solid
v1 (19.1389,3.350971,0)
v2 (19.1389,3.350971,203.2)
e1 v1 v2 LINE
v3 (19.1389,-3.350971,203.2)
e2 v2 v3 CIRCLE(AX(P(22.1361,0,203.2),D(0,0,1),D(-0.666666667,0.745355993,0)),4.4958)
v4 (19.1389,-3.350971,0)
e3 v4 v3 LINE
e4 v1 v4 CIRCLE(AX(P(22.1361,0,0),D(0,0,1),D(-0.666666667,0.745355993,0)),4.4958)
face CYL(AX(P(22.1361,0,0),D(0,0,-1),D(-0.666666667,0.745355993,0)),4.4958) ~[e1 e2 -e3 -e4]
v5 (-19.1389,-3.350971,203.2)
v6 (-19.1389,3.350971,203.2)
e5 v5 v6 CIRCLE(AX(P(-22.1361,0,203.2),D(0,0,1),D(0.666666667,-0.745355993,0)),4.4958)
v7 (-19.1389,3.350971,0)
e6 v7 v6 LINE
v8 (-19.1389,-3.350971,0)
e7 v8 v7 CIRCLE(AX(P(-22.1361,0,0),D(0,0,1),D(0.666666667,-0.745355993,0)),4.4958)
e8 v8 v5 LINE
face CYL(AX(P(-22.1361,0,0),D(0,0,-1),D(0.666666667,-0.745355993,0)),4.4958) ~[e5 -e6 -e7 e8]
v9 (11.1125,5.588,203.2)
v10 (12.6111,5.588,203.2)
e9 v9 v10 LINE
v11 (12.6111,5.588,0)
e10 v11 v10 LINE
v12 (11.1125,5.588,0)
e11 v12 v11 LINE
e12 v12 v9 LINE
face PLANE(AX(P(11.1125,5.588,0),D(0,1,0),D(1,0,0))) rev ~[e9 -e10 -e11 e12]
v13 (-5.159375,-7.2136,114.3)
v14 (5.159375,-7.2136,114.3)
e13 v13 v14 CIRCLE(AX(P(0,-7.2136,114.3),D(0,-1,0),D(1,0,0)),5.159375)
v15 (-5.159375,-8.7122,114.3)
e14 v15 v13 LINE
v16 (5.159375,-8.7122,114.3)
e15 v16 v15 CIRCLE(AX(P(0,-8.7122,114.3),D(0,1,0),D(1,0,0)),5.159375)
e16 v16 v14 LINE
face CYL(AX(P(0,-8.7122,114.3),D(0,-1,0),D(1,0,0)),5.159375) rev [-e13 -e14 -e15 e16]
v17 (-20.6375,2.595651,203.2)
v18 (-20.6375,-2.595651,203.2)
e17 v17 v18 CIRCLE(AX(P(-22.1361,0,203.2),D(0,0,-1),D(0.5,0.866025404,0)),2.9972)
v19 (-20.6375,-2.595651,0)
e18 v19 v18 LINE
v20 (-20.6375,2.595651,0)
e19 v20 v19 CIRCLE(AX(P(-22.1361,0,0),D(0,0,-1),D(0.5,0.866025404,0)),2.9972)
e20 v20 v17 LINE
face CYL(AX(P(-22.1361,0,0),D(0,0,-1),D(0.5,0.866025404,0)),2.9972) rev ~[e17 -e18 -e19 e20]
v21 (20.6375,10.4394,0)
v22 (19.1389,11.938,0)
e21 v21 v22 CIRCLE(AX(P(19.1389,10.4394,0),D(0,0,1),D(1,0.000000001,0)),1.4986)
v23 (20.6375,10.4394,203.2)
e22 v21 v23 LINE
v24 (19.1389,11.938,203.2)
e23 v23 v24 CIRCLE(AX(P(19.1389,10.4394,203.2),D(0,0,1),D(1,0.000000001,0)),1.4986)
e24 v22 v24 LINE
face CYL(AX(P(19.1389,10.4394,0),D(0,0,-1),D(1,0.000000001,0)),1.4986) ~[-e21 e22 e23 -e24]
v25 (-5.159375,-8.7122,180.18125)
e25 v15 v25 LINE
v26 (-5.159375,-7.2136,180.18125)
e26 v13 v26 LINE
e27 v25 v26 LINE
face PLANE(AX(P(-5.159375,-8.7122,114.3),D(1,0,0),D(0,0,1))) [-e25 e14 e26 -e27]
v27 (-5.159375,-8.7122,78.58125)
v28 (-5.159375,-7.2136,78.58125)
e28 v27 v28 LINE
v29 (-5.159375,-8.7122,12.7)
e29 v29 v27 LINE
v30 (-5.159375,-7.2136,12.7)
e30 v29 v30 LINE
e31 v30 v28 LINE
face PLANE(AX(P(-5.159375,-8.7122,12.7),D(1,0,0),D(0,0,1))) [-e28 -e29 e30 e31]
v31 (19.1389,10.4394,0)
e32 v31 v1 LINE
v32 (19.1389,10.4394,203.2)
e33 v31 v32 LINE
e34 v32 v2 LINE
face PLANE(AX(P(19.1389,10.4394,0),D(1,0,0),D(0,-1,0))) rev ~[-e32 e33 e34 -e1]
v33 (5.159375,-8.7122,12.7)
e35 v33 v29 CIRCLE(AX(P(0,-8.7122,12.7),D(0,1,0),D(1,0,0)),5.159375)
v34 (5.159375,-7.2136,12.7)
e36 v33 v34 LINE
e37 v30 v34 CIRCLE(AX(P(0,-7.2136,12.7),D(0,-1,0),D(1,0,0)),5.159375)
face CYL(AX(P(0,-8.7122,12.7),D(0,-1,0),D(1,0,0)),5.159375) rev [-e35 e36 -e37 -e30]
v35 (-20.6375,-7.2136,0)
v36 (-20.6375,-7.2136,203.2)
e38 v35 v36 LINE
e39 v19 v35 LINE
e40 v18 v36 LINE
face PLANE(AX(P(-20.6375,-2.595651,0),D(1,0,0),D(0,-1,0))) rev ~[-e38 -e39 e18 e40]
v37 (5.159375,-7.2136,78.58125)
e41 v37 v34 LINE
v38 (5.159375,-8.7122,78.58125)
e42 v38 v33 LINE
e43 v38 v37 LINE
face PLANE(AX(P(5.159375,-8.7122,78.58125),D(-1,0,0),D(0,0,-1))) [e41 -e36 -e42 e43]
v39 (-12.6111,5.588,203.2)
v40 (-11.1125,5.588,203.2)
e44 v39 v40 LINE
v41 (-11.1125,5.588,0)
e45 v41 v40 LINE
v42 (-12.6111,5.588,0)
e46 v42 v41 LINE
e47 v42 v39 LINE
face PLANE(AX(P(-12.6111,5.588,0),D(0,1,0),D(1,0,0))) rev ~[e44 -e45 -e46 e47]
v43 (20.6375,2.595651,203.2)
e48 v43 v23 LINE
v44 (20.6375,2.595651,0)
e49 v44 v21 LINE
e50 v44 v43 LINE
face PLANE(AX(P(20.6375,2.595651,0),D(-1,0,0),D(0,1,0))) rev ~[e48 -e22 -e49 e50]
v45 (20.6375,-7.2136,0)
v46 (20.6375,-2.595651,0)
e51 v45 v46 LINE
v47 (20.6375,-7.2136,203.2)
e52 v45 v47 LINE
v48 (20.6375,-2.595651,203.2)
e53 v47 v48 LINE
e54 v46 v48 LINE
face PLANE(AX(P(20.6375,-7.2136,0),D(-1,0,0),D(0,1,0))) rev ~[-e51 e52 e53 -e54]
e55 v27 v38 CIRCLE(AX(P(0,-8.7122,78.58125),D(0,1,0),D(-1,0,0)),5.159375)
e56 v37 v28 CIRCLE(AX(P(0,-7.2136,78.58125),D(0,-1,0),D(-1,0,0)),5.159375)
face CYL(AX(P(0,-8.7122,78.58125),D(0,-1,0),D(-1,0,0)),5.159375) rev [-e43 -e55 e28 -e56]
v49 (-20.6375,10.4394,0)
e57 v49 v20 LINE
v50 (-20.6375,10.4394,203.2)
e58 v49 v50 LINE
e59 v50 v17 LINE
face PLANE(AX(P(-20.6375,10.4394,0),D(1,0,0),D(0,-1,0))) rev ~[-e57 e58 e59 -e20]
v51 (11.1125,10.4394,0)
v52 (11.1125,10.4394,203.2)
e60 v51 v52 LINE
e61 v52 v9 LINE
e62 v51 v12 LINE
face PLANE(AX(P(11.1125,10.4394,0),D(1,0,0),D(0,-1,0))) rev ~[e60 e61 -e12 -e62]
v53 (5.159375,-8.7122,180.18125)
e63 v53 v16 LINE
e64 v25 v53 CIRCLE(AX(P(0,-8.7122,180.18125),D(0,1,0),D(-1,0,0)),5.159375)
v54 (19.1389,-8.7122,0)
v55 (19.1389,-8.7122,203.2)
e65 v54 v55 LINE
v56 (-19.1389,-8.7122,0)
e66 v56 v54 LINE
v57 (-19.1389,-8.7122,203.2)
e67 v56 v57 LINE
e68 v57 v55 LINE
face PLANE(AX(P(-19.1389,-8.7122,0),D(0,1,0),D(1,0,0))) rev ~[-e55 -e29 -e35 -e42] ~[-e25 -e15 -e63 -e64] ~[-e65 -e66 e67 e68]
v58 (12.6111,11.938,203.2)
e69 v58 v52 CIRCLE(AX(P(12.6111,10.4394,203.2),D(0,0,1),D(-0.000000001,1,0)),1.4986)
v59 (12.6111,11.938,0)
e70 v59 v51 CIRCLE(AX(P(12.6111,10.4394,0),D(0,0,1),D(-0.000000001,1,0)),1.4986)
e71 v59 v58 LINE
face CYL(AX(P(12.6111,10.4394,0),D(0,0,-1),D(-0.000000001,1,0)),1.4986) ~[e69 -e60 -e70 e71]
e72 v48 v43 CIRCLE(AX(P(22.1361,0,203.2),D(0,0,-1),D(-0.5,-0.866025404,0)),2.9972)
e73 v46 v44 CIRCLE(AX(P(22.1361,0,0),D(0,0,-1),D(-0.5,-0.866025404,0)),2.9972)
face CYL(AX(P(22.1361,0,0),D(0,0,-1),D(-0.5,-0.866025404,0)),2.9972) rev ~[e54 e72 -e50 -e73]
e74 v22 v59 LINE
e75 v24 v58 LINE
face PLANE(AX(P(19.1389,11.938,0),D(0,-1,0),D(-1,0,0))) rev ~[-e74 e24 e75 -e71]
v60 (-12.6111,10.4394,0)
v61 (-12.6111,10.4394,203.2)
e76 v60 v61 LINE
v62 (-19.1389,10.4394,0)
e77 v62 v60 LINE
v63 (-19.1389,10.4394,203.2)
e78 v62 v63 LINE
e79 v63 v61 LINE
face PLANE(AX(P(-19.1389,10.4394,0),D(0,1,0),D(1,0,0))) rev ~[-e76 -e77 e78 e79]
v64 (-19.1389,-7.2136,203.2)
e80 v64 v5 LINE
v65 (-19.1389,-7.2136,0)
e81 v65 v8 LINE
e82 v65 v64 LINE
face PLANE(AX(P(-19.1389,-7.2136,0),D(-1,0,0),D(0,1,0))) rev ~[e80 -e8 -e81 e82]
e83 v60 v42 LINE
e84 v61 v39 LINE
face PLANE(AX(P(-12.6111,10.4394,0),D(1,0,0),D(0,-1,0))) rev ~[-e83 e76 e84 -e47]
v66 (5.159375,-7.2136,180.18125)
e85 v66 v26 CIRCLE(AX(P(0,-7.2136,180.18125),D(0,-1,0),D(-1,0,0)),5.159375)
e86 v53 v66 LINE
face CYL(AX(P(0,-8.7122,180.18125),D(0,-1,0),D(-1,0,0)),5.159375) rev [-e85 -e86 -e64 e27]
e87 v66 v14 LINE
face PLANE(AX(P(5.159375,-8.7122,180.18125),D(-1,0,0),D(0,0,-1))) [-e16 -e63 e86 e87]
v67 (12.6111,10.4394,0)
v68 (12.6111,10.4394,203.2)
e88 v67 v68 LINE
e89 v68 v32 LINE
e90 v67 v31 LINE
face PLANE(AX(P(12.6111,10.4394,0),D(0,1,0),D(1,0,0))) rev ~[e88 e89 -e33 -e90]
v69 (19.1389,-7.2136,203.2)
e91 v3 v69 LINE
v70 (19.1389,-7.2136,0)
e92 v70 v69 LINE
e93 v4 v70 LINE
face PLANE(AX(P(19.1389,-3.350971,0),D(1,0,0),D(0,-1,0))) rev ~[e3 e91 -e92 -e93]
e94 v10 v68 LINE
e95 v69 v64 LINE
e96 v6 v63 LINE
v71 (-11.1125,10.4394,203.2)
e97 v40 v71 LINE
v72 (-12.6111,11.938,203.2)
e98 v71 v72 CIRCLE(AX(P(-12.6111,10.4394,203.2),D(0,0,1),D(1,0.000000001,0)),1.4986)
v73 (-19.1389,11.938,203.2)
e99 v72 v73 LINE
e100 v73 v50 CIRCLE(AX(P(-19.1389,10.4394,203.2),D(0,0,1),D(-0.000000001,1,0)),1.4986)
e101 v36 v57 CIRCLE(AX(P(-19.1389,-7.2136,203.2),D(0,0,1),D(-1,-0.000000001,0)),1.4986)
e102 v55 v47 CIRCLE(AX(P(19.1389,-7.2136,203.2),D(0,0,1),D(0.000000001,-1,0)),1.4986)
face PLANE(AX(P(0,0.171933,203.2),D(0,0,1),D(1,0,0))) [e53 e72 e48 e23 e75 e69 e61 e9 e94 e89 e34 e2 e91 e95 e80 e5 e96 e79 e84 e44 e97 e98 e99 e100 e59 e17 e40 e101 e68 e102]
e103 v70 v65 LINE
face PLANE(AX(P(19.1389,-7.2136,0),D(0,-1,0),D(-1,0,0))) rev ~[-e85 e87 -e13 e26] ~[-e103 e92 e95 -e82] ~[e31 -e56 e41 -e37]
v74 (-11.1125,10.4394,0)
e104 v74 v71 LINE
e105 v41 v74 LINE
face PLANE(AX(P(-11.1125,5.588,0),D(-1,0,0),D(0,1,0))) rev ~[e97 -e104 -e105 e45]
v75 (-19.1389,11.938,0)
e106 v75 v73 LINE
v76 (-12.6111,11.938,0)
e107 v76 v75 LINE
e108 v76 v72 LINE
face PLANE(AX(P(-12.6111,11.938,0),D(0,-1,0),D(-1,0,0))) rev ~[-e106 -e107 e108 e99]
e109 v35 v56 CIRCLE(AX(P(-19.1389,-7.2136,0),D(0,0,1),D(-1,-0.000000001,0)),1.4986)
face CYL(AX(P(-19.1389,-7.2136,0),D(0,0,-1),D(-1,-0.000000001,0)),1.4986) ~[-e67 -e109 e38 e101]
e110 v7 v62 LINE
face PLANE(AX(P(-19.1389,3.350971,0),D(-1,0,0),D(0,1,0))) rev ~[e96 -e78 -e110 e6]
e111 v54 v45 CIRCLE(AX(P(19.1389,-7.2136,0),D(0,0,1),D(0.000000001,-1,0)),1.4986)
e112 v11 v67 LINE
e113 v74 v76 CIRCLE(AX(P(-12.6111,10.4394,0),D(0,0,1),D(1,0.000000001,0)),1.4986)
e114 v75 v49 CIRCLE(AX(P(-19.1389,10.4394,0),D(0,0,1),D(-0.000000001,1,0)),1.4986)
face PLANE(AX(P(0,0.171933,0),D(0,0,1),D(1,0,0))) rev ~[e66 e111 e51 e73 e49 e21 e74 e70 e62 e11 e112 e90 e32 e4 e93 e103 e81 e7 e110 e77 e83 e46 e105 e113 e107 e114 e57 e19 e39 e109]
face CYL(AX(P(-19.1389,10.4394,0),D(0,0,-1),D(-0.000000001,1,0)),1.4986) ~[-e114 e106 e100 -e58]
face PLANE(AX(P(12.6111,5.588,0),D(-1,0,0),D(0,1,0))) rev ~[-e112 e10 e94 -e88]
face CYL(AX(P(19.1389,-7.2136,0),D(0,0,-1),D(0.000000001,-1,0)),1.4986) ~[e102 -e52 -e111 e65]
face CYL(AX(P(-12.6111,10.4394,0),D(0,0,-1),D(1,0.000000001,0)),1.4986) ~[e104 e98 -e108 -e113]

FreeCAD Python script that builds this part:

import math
import FreeCAD as App
import Part
import Sketcher

V = App.Vector
Q = App.Units.Quantity

doc = App.newDocument("Part")
body = doc.addObject("PartDesign::Body", "Body")

sketch1 = body.newObject("Sketcher::SketchObject", "Sketch")
sketch1.AttachmentSupport = (doc.getObject("XY_Plane"), [""])
sketch1.MapMode = "FlatFace"
sketch1.addGeometry(Part.LineSegment(V(-20.6375, 10.4394, 0), V(-20.6375, 2.595651, 0)), False)
sketch1.addGeometry(Part.ArcOfCircle(Part.Circle(V(-22.1361, 0, 0), V(0, 0, 1), 2.9972), math.radians(-60), math.radians(60)), False)
sketch1.addGeometry(Part.LineSegment(V(-20.6375, -2.595651, 0), V(-20.6375, -7.2136, 0)), False)
sketch1.addGeometry(Part.ArcOfCircle(Part.Circle(V(-19.1389, -7.2136, 0), V(0, 0, 1), 1.4986), math.radians(-180), math.radians(-90)), False)
sketch1.addGeometry(Part.LineSegment(V(-19.1389, -8.7122, 0), V(19.1389, -8.7122, 0)), False)
sketch1.addGeometry(Part.ArcOfCircle(Part.Circle(V(19.1389, -7.2136, 0), V(0, 0, 1), 1.4986), math.radians(-90), math.radians(0)), False)
sketch1.addGeometry(Part.LineSegment(V(20.6375, -7.2136, 0), V(20.6375, -2.595651, 0)), False)
sketch1.addGeometry(Part.ArcOfCircle(Part.Circle(V(22.1361, 0, 0), V(0, 0, 1), 2.9972), math.radians(120), math.radians(240)), False)
sketch1.addGeometry(Part.LineSegment(V(20.6375, 2.595651, 0), V(20.6375, 10.4394, 0)), False)
sketch1.addGeometry(Part.ArcOfCircle(Part.Circle(V(19.1389, 10.4394, 0), V(0, 0, 1), 1.4986), math.radians(0), math.radians(90)), False)
sketch1.addGeometry(Part.LineSegment(V(19.1389, 11.938, 0), V(12.6111, 11.938, 0)), False)
sketch1.addGeometry(Part.ArcOfCircle(Part.Circle(V(12.6111, 10.4394, 0), V(0, 0, 1), 1.4986), math.radians(90), math.radians(180)), False)
sketch1.addGeometry(Part.LineSegment(V(11.1125, 10.4394, 0), V(11.1125, 5.588, 0)), False)
sketch1.addGeometry(Part.LineSegment(V(11.1125, 5.588, 0), V(12.6111, 5.588, 0)), False)
sketch1.addGeometry(Part.LineSegment(V(12.6111, 5.588, 0), V(12.6111, 10.4394, 0)), False)
sketch1.addGeometry(Part.LineSegment(V(12.6111, 10.4394, 0), V(19.1389, 10.4394, 0)), False)
sketch1.addGeometry(Part.LineSegment(V(19.1389, 10.4394, 0), V(19.1389, 3.350971, 0)), False)
sketch1.addGeometry(Part.ArcOfCircle(Part.Circle(V(22.1361, 0, 0), V(0, 0, 1), 4.4958), math.radians(131.810315), math.radians(228.189685)), False)
sketch1.addGeometry(Part.LineSegment(V(19.1389, -3.350971, 0), V(19.1389, -7.2136, 0)), False)
sketch1.addGeometry(Part.LineSegment(V(19.1389, -7.2136, 0), V(-19.1389, -7.2136, 0)), False)
sketch1.addGeometry(Part.LineSegment(V(-19.1389, -7.2136, 0), V(-19.1389, -3.350971, 0)), False)
sketch1.addGeometry(Part.ArcOfCircle(Part.Circle(V(-22.1361, 0, 0), V(0, 0, 1), 4.4958), math.radians(-48.189685), math.radians(48.189685)), False)
sketch1.addGeometry(Part.LineSegment(V(-19.1389, 3.350971, 0), V(-19.1389, 10.4394, 0)), False)
sketch1.addGeometry(Part.LineSegment(V(-19.1389, 10.4394, 0), V(-12.6111, 10.4394, 0)), False)
sketch1.addGeometry(Part.LineSegment(V(-12.6111, 10.4394, 0), V(-12.6111, 5.588, 0)), False)
sketch1.addGeometry(Part.LineSegment(V(-12.6111, 5.588, 0), V(-11.1125, 5.588, 0)), False)
sketch1.addGeometry(Part.LineSegment(V(-11.1125, 5.588, 0), V(-11.1125, 10.4394, 0)), False)
sketch1.addGeometry(Part.ArcOfCircle(Part.Circle(V(-12.6111, 10.4394, 0), V(0, 0, 1), 1.4986), math.radians(0), math.radians(90)), False)
sketch1.addGeometry(Part.LineSegment(V(-12.6111, 11.938, 0), V(-19.1389, 11.938, 0)), False)
sketch1.addGeometry(Part.ArcOfCircle(Part.Circle(V(-19.1389, 10.4394, 0), V(0, 0, 1), 1.4986), math.radians(90), math.radians(180)), False)
sketch1.addConstraint(Sketcher.Constraint("Coincident", 0, 2, 1, 2))
sketch1.addConstraint(Sketcher.Constraint("Coincident", 1, 1, 2, 1))
sketch1.addConstraint(Sketcher.Constraint("Tangent", 2, 2, 3, 1))
sketch1.addConstraint(Sketcher.Constraint("Tangent", 3, 2, 4, 1))
sketch1.addConstraint(Sketcher.Constraint("Tangent", 4, 2, 5, 1))
sketch1.addConstraint(Sketcher.Constraint("Tangent", 5, 2, 6, 1))
sketch1.addConstraint(Sketcher.Constraint("Coincident", 6, 2, 7, 2))
sketch1.addConstraint(Sketcher.Constraint("Coincident", 7, 1, 8, 1))
sketch1.addConstraint(Sketcher.Constraint("Tangent", 8, 2, 9, 1))
sketch1.addConstraint(Sketcher.Constraint("Tangent", 9, 2, 10, 1))
sketch1.addConstraint(Sketcher.Constraint("Tangent", 10, 2, 11, 1))
sketch1.addConstraint(Sketcher.Constraint("Tangent", 11, 2, 12, 1))
sketch1.addConstraint(Sketcher.Constraint("Coincident", 12, 2, 13, 1))
sketch1.addConstraint(Sketcher.Constraint("Coincident", 13, 2, 14, 1))
sketch1.addConstraint(Sketcher.Constraint("Coincident", 14, 2, 15, 1))
sketch1.addConstraint(Sketcher.Constraint("Coincident", 15, 2, 16, 1))
sketch1.addConstraint(Sketcher.Constraint("Coincident", 16, 2, 17, 1))
sketch1.addConstraint(Sketcher.Constraint("Coincident", 17, 2, 18, 1))
sketch1.addConstraint(Sketcher.Constraint("Coincident", 18, 2, 19, 1))
sketch1.addConstraint(Sketcher.Constraint("Coincident", 19, 2, 20, 1))
sketch1.addConstraint(Sketcher.Constraint("Coincident", 20, 2, 21, 1))
sketch1.addConstraint(Sketcher.Constraint("Coincident", 21, 2, 22, 1))
sketch1.addConstraint(Sketcher.Constraint("Coincident", 22, 2, 23, 1))
sketch1.addConstraint(Sketcher.Constraint("Coincident", 23, 2, 24, 1))
sketch1.addConstraint(Sketcher.Constraint("Coincident", 24, 2, 25, 1))
sketch1.addConstraint(Sketcher.Constraint("Coincident", 25, 2, 26, 1))
sketch1.addConstraint(Sketcher.Constraint("Tangent", 26, 2, 27, 1))
sketch1.addConstraint(Sketcher.Constraint("Tangent", 27, 2, 28, 1))
sketch1.addConstraint(Sketcher.Constraint("Tangent", 28, 2, 29, 1))
sketch1.addConstraint(Sketcher.Constraint("Tangent", 29, 2, 0, 1))
sketch1.addConstraint(Sketcher.Constraint("Vertical", 0))
sketch1.addConstraint(Sketcher.Constraint("Vertical", 2))
sketch1.addConstraint(Sketcher.Constraint("Horizontal", 4))
sketch1.addConstraint(Sketcher.Constraint("Vertical", 6))
sketch1.addConstraint(Sketcher.Constraint("Vertical", 8))
sketch1.addConstraint(Sketcher.Constraint("Horizontal", 10))
sketch1.addConstraint(Sketcher.Constraint("Vertical", 12))
sketch1.addConstraint(Sketcher.Constraint("Horizontal", 13))
sketch1.addConstraint(Sketcher.Constraint("Vertical", 14))
sketch1.addConstraint(Sketcher.Constraint("Horizontal", 15))
sketch1.addConstraint(Sketcher.Constraint("Vertical", 16))
sketch1.addConstraint(Sketcher.Constraint("Vertical", 18))
sketch1.addConstraint(Sketcher.Constraint("Horizontal", 19))
sketch1.addConstraint(Sketcher.Constraint("Vertical", 20))
sketch1.addConstraint(Sketcher.Constraint("Vertical", 22))
sketch1.addConstraint(Sketcher.Constraint("Horizontal", 23))
sketch1.addConstraint(Sketcher.Constraint("Vertical", 24))
sketch1.addConstraint(Sketcher.Constraint("Horizontal", 25))
sketch1.addConstraint(Sketcher.Constraint("Vertical", 26))
sketch1.addConstraint(Sketcher.Constraint("Horizontal", 28))
sketch1.addConstraint(Sketcher.Constraint("Coincident", 17, 3, 7, 3))
sketch1.addConstraint(Sketcher.Constraint("Coincident", 21, 3, 1, 3))
sketch1.addConstraint(Sketcher.Constraint("Coincident", 14, 2, 11, 3))
sketch1.addConstraint(Sketcher.Constraint("Coincident", 15, 2, 9, 3))
sketch1.addConstraint(Sketcher.Constraint("Coincident", 18, 2, 5, 3))
sketch1.addConstraint(Sketcher.Constraint("Coincident", 19, 2, 3, 3))
sketch1.addConstraint(Sketcher.Constraint("Coincident", 22, 2, 29, 3))
sketch1.addConstraint(Sketcher.Constraint("Coincident", 23, 2, 27, 3))
sketch1.addConstraint(Sketcher.Constraint("Equal", 1, 7))
sketch1.addConstraint(Sketcher.Constraint("Equal", 5, 9))
sketch1.addConstraint(Sketcher.Constraint("Equal", 17, 21))
sketch1.addConstraint(Sketcher.Constraint("Equal", 11, 27))
sketch1.addConstraint(Sketcher.Constraint("Symmetric", 1, 3, 7, 3, -1, 1))
sketch1.addConstraint(Sketcher.Constraint("Symmetric", 11, 3, 27, 3, -2))
sketch1.addConstraint(Sketcher.Constraint("Symmetric", 1, 1, 6, 2, -2))
sketch1.addConstraint(Sketcher.Constraint("Horizontal", 0, 2, 7, 1))
sketch1.addConstraint(Sketcher.Constraint("Horizontal", 13, 2, 24, 2))
sketch1.addConstraint(Sketcher.Constraint("Vertical", 5, 3, 9, 3))
sketch1.addConstraint(Sketcher.Constraint("Radius", 1, Q("0.118 in")))
sketch1.addConstraint(Sketcher.Constraint("Radius", 3, Q("0.059 in")))
sketch1.addConstraint(Sketcher.Constraint("Radius", 17, Q("0.177 in")))
sketch1.addConstraint(Sketcher.Constraint("DistanceX", 4, 1, 4, 2, Q("1.507 in")))
sketch1.addConstraint(Sketcher.Constraint("DistanceX", 10, 2, 10, 1, Q("0.257 in")))
sketch1.addConstraint(Sketcher.Constraint("DistanceY", 12, 2, 12, 1, Q("0.191 in")))
sketch1.addConstraint(Sketcher.Constraint("DistanceY", -1, 1, 9, 2, Q("0.47 in")))
sketch1.addConstraint(Sketcher.Constraint("DistanceY", 3, 3, -1, 1, Q("0.284 in")))
sketch1.addConstraint(Sketcher.Constraint("DistanceX", 1, 3, 3, 3, Q("0.118 in")))
pad1 = body.newObject("PartDesign::Pad", "Pad")
pad1.Profile = sketch1
pad1.Length = Q("8 in")

sketch2 = body.newObject("Sketcher::SketchObject", "Sketch001")
sketch2.AttachmentSupport = (doc.getObject("XZ_Plane"), [""])
sketch2.MapMode = "FlatFace"
sketch2.AttachmentOffset = App.Placement(V(0, 0, 0.343 * 25.4), App.Rotation())
sketch2.addGeometry(Part.LineSegment(V(5.159375, 12.7, 0), V(5.159375, 78.58125, 0)), False)
sketch2.addGeometry(Part.ArcOfCircle(Part.Circle(V(0, 78.58125, 0), V(0, 0, 1), 5.159375), math.radians(0), math.radians(180)), False)
sketch2.addGeometry(Part.LineSegment(V(-5.159375, 78.58125, 0), V(-5.159375, 12.7, 0)), False)
sketch2.addGeometry(Part.ArcOfCircle(Part.Circle(V(0, 12.7, 0), V(0, 0, 1), 5.159375), math.radians(180), math.radians(360)), False)
sketch2.addConstraint(Sketcher.Constraint("Tangent", 0, 2, 1, 1))
sketch2.addConstraint(Sketcher.Constraint("Tangent", 1, 2, 2, 1))
sketch2.addConstraint(Sketcher.Constraint("Tangent", 2, 2, 3, 1))
sketch2.addConstraint(Sketcher.Constraint("Tangent", 3, 2, 0, 1))
sketch2.addConstraint(Sketcher.Constraint("Vertical", 0))
sketch2.addConstraint(Sketcher.Constraint("Vertical", 2))
sketch2.addConstraint(Sketcher.Constraint("PointOnObject", 1, 3, -2))
sketch2.addConstraint(Sketcher.Constraint("Radius", 1, Q("0.203125 in")))
sketch2.addConstraint(Sketcher.Constraint("DistanceY", -1, 1, 3, 3, Q("0.5 in")))
sketch2.addConstraint(Sketcher.Constraint("DistanceY", 0, 1, 0, 2, Q("2.59375 in")))
pocket1 = body.newObject("PartDesign::Pocket", "Pocket")
pocket1.Profile = sketch2
pocket1.Type = "ThroughAll"
doc.recompute()

linearpattern = body.newObject("PartDesign::LinearPattern", "LinearPattern")
linearpattern.Originals = [pocket1]
linearpattern.Direction = (doc.getObject("Z_Axis"), [""])
linearpattern.Mode = "offset"
linearpattern.Offset = Q("4 in")
linearpattern.Occurrences = 2
body.Tip = linearpattern

doc.recompute()
